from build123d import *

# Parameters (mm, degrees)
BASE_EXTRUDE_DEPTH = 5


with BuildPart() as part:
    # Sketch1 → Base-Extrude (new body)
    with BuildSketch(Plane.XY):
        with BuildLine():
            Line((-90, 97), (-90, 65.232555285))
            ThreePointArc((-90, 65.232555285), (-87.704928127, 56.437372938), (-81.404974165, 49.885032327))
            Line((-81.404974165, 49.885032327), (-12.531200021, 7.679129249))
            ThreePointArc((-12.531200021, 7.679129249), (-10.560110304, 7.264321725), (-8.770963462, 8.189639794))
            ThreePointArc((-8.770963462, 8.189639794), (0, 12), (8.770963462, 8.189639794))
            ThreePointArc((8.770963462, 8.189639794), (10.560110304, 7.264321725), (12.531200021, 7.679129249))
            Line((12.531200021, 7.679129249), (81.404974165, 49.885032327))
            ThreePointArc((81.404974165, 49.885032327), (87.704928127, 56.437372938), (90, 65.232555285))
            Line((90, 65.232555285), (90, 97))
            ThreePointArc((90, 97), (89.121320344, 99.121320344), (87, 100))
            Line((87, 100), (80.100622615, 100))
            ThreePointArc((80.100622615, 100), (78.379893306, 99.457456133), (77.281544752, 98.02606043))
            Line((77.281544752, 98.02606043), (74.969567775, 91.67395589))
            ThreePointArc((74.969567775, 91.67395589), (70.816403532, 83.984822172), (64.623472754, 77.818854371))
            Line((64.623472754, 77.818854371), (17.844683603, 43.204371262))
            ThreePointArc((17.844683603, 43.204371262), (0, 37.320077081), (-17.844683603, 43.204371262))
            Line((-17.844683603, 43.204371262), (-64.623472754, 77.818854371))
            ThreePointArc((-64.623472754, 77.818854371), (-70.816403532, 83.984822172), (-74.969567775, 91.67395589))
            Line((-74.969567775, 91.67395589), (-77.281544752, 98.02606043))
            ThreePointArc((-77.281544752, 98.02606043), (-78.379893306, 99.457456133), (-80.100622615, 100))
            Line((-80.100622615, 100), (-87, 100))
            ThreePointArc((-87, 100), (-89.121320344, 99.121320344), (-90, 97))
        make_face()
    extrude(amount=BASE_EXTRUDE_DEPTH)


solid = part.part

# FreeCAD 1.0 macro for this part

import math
import FreeCAD as App
import Part
import Sketcher

V = App.Vector
Q = App.Units.Quantity

doc = App.newDocument("Part")
body = doc.addObject("PartDesign::Body", "Body")

# Sketch on XY plane
sketch1 = doc.addObject("Sketcher::SketchObject", "Sketch")
body.addObject(sketch1)
sketch1.AttachmentSupport = (doc.XY_Plane, [""])
sketch1.MapMode = "FlatFace"
sketch1.addGeometry([
    Part.LineSegment(V(-90, 97, 0), V(-90, 65.2, 0)),  # 0
    Part.ArcOfCircle(Part.Circle(V(-72, 65.2, 0), V(0, 0, 1), 18), math.radians(-180), math.radians(-122)),  # 1
    Part.LineSegment(V(-81.4, 49.9, 0), V(-12.5, 7.7, 0)),  # 2
    Part.ArcOfCircle(Part.Circle(V(-11, 10.2, 0), V(0, 0, 1), 3), math.radians(-122), math.radians(-43)),  # 3
    Part.ArcOfCircle(Part.Circle(V(0, 0, 0), V(0, 0, 1), 12), math.radians(43), math.radians(137)),  # 4
    Part.ArcOfCircle(Part.Circle(V(11, 10.2, 0), V(0, 0, 1), 3), math.radians(-137), math.radians(-58)),  # 5
    Part.LineSegment(V(12.5, 7.7, 0), V(81.4, 49.9, 0)),  # 6
    Part.ArcOfCircle(Part.Circle(V(72, 65.2, 0), V(0, 0, 1), 18), math.radians(-58), math.radians(0)),  # 7
    Part.LineSegment(V(90, 65.2, 0), V(90, 97, 0)),  # 8
    Part.ArcOfCircle(Part.Circle(V(87, 97, 0), V(0, 0, 1), 3), math.radians(0), math.radians(90)),  # 9
    Part.LineSegment(V(87, 100, 0), V(80.1, 100, 0)),  # 10
    Part.ArcOfCircle(Part.Circle(V(80.1, 97, 0), V(0, 0, 1), 3), math.radians(90), math.radians(160)),  # 11
    Part.LineSegment(V(77.3, 98, 0), V(75, 91.7, 0)),  # 12
    Part.ArcOfCircle(Part.Circle(V(46.8, 101.9, 0), V(0, 0, 1), 30), math.radians(-54), math.radians(-20)),  # 13
    Part.LineSegment(V(64.6, 77.8, 0), V(17.8, 43.2, 0)),  # 14
    Part.ArcOfCircle(Part.Circle(V(0, 67.3, 0), V(0, 0, 1), 30), math.radians(-126), math.radians(-54)),  # 15
    Part.LineSegment(V(-17.8, 43.2, 0), V(-64.6, 77.8, 0)),  # 16
    Part.ArcOfCircle(Part.Circle(V(-46.8, 101.9, 0), V(0, 0, 1), 30), math.radians(-160), math.radians(-126)),  # 17
    Part.LineSegment(V(-75, 91.7, 0), V(-77.3, 98, 0)),  # 18
    Part.ArcOfCircle(Part.Circle(V(-80.1, 97, 0), V(0, 0, 1), 3), math.radians(20), math.radians(90)),  # 19
    Part.LineSegment(V(-80.1, 100, 0), V(-87, 100, 0)),  # 20
    Part.ArcOfCircle(Part.Circle(V(-87, 97, 0), V(0, 0, 1), 3), math.radians(90), math.radians(180)),  # 21
], False)
sketch1.addConstraint([
    Sketcher.Constraint("Tangent", 0, 2, 1, 1),
    Sketcher.Constraint("Tangent", 1, 2, 2, 1),
    Sketcher.Constraint("Tangent", 2, 2, 3, 1),
    Sketcher.Constraint("Tangent", 3, 2, 4, 2),
    Sketcher.Constraint("Tangent", 4, 1, 5, 1),
    Sketcher.Constraint("Tangent", 5, 2, 6, 1),
    Sketcher.Constraint("Tangent", 6, 2, 7, 1),
    Sketcher.Constraint("Tangent", 7, 2, 8, 1),
    Sketcher.Constraint("Tangent", 8, 2, 9, 1),
    Sketcher.Constraint("Tangent", 9, 2, 10, 1),
    Sketcher.Constraint("Tangent", 10, 2, 11, 1),
    Sketcher.Constraint("Tangent", 11, 2, 12, 1),
    Sketcher.Constraint("Tangent", 12, 2, 13, 2),
    Sketcher.Constraint("Tangent", 13, 1, 14, 1),
    Sketcher.Constraint("Tangent", 14, 2, 15, 2),
    Sketcher.Constraint("Tangent", 15, 1, 16, 1),
    Sketcher.Constraint("Tangent", 16, 2, 17, 2),
    Sketcher.Constraint("Tangent", 17, 1, 18, 1),
    Sketcher.Constraint("Tangent", 18, 2, 19, 1),
    Sketcher.Constraint("Tangent", 19, 2, 20, 1),
    Sketcher.Constraint("Tangent", 20, 2, 21, 1),
    Sketcher.Constraint("Tangent", 21, 2, 0, 1),
    Sketcher.Constraint("Vertical", 0),
    Sketcher.Constraint("Vertical", 8),
    Sketcher.Constraint("Horizontal", 10),
    Sketcher.Constraint("Horizontal", 20),
    Sketcher.Constraint("Coincident", 4, 3, -1, 1),
    Sketcher.Constraint("Equal", 3, 5),
    Sketcher.Constraint("Equal", 1, 7),
    Sketcher.Constraint("Equal", 5, 9),
    Sketcher.Constraint("Equal", 9, 11),
    Sketcher.Constraint("Equal", 13, 15),
    Sketcher.Constraint("Equal", 15, 17),
    Sketcher.Constraint("Equal", 11, 19),
    Sketcher.Constraint("Equal", 19, 21),
    Sketcher.Constraint("Symmetric", 1, 3, 7, 3, -2),
    Sketcher.Constraint("Symmetric", 13, 3, 17, 3, -2),
    Sketcher.Constraint("Symmetric", 11, 3, 19, 3, -2),
    Sketcher.Constraint("PointOnObject", 15, 3, -2),
    Sketcher.Constraint("Horizontal", 3, 3, 5, 3),
    Sketcher.Constraint("Radius", 1, 18.0),
    Sketcher.Constraint("Radius", 3, 3.0),
    Sketcher.Constraint("Radius", 4, 12.0),
    Sketcher.Constraint("Radius", 13, 30.0),
    Sketcher.Constraint("Angle", 12, Q("-110 deg")),
    Sketcher.Constraint("DistanceX", 1, 3, -1, 1, 72.0),
    Sketcher.Constraint("DistanceY", -1, 1, 9, 3, 97.0),
    Sketcher.Constraint("Angle", 2, Q("-31.5 deg")),
    Sketcher.Constraint("Angle", 14, Q("-143.5 deg")),
    Sketcher.Constraint("DistanceX", 2, 2, -1, 1, 12.5312),
    Sketcher.Constraint("DistanceY", 7, 3, 13, 1, 12.586299),
    Sketcher.Constraint("DistanceX", 10, 2, 10, 1, 6.899377),
])
pad1 = doc.addObject("PartDesign::Pad", "Pad")
body.addObject(pad1)
pad1.Profile = sketch1
pad1.Length = 5

doc.recompute()
